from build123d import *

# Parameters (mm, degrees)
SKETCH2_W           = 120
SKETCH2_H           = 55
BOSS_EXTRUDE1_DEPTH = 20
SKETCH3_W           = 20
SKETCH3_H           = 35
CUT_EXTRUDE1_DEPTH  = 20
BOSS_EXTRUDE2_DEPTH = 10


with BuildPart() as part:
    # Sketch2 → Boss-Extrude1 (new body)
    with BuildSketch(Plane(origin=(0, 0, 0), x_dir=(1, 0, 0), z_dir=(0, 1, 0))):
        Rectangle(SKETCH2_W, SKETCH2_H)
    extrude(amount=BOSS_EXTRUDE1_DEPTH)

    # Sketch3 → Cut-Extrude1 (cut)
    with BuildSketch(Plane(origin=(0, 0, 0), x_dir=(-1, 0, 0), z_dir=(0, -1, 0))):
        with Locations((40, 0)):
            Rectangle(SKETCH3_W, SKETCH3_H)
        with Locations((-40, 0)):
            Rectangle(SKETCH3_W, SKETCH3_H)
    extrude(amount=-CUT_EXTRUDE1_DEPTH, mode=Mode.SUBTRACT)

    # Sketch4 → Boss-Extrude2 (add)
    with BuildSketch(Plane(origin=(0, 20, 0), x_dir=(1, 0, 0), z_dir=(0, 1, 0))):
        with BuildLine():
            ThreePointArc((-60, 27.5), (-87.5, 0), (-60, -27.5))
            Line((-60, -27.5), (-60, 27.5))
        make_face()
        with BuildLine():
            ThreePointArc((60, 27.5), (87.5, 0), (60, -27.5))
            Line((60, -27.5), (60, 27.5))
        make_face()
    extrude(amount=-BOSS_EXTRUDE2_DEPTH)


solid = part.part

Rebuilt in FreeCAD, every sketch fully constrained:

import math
import FreeCAD as App
import Part
import Sketcher

V = App.Vector
Q = App.Units.Quantity


def add_polygon(sketch, points):
    """Adds a closed chain of lines whose ends are joined by coincident constraints."""
    first, n = sketch.GeometryCount, len(points)
    for a, b in zip(points, points[1:] + points[:1]):
        sketch.addGeometry(Part.LineSegment(App.Vector(*a, 0), App.Vector(*b, 0)), False)
    for i in range(n):
        sketch.addConstraint(Sketcher.Constraint("Coincident", first + i, 2, first + (i + 1) % n, 1))

doc = App.newDocument("Part")
body = doc.addObject("PartDesign::Body", "Body")

# Sketch on XZ plane
sketch1 = body.newObject("Sketcher::SketchObject", "Sketch")
sketch1.AttachmentSupport = (doc.getObject("XZ_Plane"), [""])
sketch1.MapMode = "FlatFace"
add_polygon(sketch1, [(-60, -28), (-60, 28), (60, 28), (60, -28)])  # lines 0-3
sketch1.addConstraint([
    Sketcher.Constraint("Vertical", 0),
    Sketcher.Constraint("Horizontal", 1),
    Sketcher.Constraint("Vertical", 2),
    Sketcher.Constraint("Horizontal", 3),
    Sketcher.Constraint("Symmetric", 0, 2, 2, 2, -1, 1),
    Sketcher.Constraint("DistanceX", 1, 1, 1, 2, Q("120 mm")),
    Sketcher.Constraint("DistanceY", 0, 1, 0, 2, Q("55 mm")),
])
pad1 = body.newObject("PartDesign::Pad", "Pad")
pad1.Profile = sketch1
pad1.Length = 20
pad1.Reversed = True

# Sketch on XZ plane
sketch2 = body.newObject("Sketcher::SketchObject", "Sketch001")
sketch2.AttachmentSupport = (doc.getObject("XZ_Plane"), [""])
sketch2.MapMode = "FlatFace"
add_polygon(sketch2, [(-30, -18), (-30, 18), (-50, 18), (-50, -18)])  # lines 0-3
add_polygon(sketch2, [(50, -18), (50, 18), (30, 18), (30, -18)])  # lines 4-7
sketch2.addConstraint([
    Sketcher.Constraint("Vertical", 0),
    Sketcher.Constraint("Horizontal", 1),
    Sketcher.Constraint("Vertical", 2),
    Sketcher.Constraint("Horizontal", 3),
    Sketcher.Constraint("Vertical", 4),
    Sketcher.Constraint("Horizontal", 5),
    Sketcher.Constraint("Vertical", 6),
    Sketcher.Constraint("Horizontal", 7),
    Sketcher.Constraint("Symmetric", 2, 2, 4, 2, -1, 1),
    Sketcher.Constraint("Symmetric", 0, 2, 6, 2, -1, 1),
    Sketcher.Constraint("Horizontal", 1, 2, 4, 2),
    Sketcher.Constraint("DistanceX", 1, 2, 1, 1, Q("20 mm")),
    Sketcher.Constraint("DistanceY", 0, 1, 0, 2, Q("35 mm")),
    Sketcher.Constraint("DistanceX", 0, 2, -1, 1, Q("30 mm")),
])
pocket1 = body.newObject("PartDesign::Pocket", "Pocket")
pocket1.Profile = sketch2
pocket1.Length = 20

# Sketch on XZ plane
sketch3 = body.newObject("Sketcher::SketchObject", "Sketch002")
sketch3.AttachmentSupport = (doc.getObject("XZ_Plane"), [""])
sketch3.MapMode = "FlatFace"
sketch3.AttachmentOffset = App.Placement(V(0, 0, -20), App.Rotation())
sketch3.addGeometry([
    Part.ArcOfCircle(Part.Circle(V(-60, 0, 0), V(0, 0, 1), 28), math.radians(90), math.radians(270)),
    Part.LineSegment(V(-60, 28, 0), V(-60, -28, 0)),
    Part.ArcOfCircle(Part.Circle(V(60, 0, 0), V(0, 0, 1), 28), math.radians(-90), math.radians(90)),
    Part.LineSegment(V(60, -28, 0), V(60, 28, 0)),
], False)
sketch3.addConstraint([
    Sketcher.Constraint("Coincident", 0, 1, 1, 1),
    Sketcher.Constraint("Coincident", 1, 2, 0, 2),
    Sketcher.Constraint("Coincident", 2, 1, 3, 1),
    Sketcher.Constraint("Coincident", 3, 2, 2, 2),
    Sketcher.Constraint("Vertical", 1),
    Sketcher.Constraint("Vertical", 3),
    Sketcher.Constraint("Equal", 0, 2),
    Sketcher.Constraint("Symmetric", 0, 3, 2, 3, -1, 1),
    Sketcher.Constraint("Symmetric", 1, 2, 2, 1, -2),
    Sketcher.Constraint("Radius", 0, Q("27.5 mm")),
    Sketcher.Constraint("DistanceX", 0, 3, -1, 1, Q("60 mm")),
    Sketcher.Constraint("DistanceX", 0, 1, -1, 1, Q("60 mm")),
])
pad2 = body.newObject("PartDesign::Pad", "Pad001")
pad2.Profile = sketch3
pad2.Length = 10

doc.recompute()
